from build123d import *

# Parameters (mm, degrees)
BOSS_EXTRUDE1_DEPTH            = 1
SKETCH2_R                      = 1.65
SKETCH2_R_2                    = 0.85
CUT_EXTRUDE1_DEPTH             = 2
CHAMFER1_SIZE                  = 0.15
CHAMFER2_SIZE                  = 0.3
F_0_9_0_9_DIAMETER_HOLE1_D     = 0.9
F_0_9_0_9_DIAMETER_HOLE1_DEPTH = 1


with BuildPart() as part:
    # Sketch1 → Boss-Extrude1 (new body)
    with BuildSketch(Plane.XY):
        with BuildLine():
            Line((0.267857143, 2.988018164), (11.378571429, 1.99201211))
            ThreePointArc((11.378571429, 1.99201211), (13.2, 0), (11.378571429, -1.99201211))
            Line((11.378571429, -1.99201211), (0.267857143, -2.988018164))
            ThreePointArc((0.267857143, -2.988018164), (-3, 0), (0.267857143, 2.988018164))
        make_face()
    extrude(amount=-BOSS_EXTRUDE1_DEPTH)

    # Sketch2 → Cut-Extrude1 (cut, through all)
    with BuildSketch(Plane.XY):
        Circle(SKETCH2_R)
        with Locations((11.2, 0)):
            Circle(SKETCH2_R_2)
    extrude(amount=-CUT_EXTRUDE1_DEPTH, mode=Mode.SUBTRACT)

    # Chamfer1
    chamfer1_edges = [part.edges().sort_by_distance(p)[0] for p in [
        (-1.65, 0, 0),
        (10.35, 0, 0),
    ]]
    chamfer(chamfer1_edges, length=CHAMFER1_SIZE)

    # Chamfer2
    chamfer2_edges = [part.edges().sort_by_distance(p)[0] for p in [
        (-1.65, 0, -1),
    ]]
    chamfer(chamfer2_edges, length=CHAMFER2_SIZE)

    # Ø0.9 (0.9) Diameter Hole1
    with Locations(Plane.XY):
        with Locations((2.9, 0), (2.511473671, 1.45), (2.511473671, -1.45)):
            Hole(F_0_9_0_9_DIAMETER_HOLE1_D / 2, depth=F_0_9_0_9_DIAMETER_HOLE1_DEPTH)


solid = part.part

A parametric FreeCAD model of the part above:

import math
import FreeCAD as App
import Part
import Sketcher
from FreeCAD import Vector


def edges_at(feature, points):
    """Names of the edges that pass closest to the given points."""
    edges = feature.Shape.Edges
    near = lambda p: min(range(len(edges)), key=lambda i: edges[i].distToShape(Part.Vertex(*p))[0])
    return sorted({f"Edge{near(p) + 1}" for p in points})

doc = App.newDocument("Part")
params = doc.addObject("Spreadsheet::Sheet", "Params")
for row, (alias, value) in enumerate([
    ("sketch1_radius", "3 mm"),
    ("sketch1_radius2", "2 mm"),
    ("pad1_length", "1 mm"),
    ("sketch2_diameter", "3.3 mm"),
    ("sketch2_diameter2", "1.7 mm"),
    ("chamfer_size", "0.15 mm"),
    ("chamfer2_size", "0.3 mm"),
    ("sketch3_diameter", "0.9 mm"),
    ("hole_diameter", "0.9 mm"),
    ("hole_depth", "1 mm"),
], start=1):
    params.set(f"A{row}", alias)
    params.set(f"B{row}", "=" + value)
    params.setAlias(f"B{row}", alias)

body = doc.addObject("PartDesign::Body", "Body")

# Sketch on XY plane
sketch1 = doc.addObject("Sketcher::SketchObject", "Sketch")
body.addObject(sketch1)
sketch1.AttachmentSupport = (doc.XY_Plane, [""])
sketch1.MapMode = "FlatFace"
sketch1.addGeometry(Part.LineSegment(Vector(11.4, 2, 0), Vector(0.3, 3, 0)), False)
sketch1.addGeometry(Part.ArcOfCircle(Part.Circle(Vector(0, 0, 0), Vector(0, 0, 1), 3), math.radians(85), math.radians(275)), False)
sketch1.addGeometry(Part.LineSegment(Vector(0.3, -3, 0), Vector(11.4, -2, 0)), False)
sketch1.addGeometry(Part.ArcOfCircle(Part.Circle(Vector(11.2, 0, 0), Vector(0, 0, 1), 2), math.radians(-85), math.radians(85)), False)
sketch1.addConstraint(Sketcher.Constraint("Tangent", 0, 2, 1, 1))
sketch1.addConstraint(Sketcher.Constraint("Tangent", 1, 2, 2, 1))
sketch1.addConstraint(Sketcher.Constraint("Tangent", 2, 2, 3, 1))
sketch1.addConstraint(Sketcher.Constraint("Tangent", 3, 2, 0, 1))
sketch1.addConstraint(Sketcher.Constraint("Coincident", 1, 3, -1, 1))
sketch1.addConstraint(Sketcher.Constraint("PointOnObject", 3, 3, -1))
sketch1.addConstraint(Sketcher.Constraint("Radius", 1, 3.0))
sketch1.addConstraint(Sketcher.Constraint("Radius", 3, 2.0))
sketch1.addConstraint(Sketcher.Constraint("DistanceX", -1, 1, 3, 3, 11.2))
sketch1.setExpression("Constraints[6]", "Params.sketch1_radius")
sketch1.setExpression("Constraints[7]", "Params.sketch1_radius2")
pad1 = doc.addObject("PartDesign::Pad", "Pad")
body.addObject(pad1)
pad1.Profile = sketch1
pad1.setExpression("Length", "Params.pad1_length")
pad1.Reversed = True

# Sketch on XY plane
sketch2 = doc.addObject("Sketcher::SketchObject", "Sketch001")
body.addObject(sketch2)
sketch2.AttachmentSupport = (doc.XY_Plane, [""])
sketch2.MapMode = "FlatFace"
sketch2.addGeometry(Part.Circle(Vector(0, 0, 0), Vector(0, 0, 1), 1.6), False)
sketch2.addGeometry(Part.Circle(Vector(11.2, 0, 0), Vector(0, 0, 1), 0.8), False)
sketch2.addConstraint(Sketcher.Constraint("Coincident", 0, 3, -1, 1))
sketch2.addConstraint(Sketcher.Constraint("PointOnObject", 1, 3, -1))
sketch2.addConstraint(Sketcher.Constraint("Diameter", 0, 3.3))
sketch2.addConstraint(Sketcher.Constraint("Diameter", 1, 1.7))
sketch2.addConstraint(Sketcher.Constraint("DistanceX", -1, 1, 1, 3, 11.2))
sketch2.setExpression("Constraints[2]", "Params.sketch2_diameter")
sketch2.setExpression("Constraints[3]", "Params.sketch2_diameter2")
pocket1 = doc.addObject("PartDesign::Pocket", "Pocket")
body.addObject(pocket1)
pocket1.Profile = sketch2
pocket1.Type = "ThroughAll"
doc.recompute()

chamfer = doc.addObject("PartDesign::Chamfer", "Chamfer")
body.addObject(chamfer)
chamfer.Base = (pocket1, edges_at(pocket1, [(-1.65, 0, 0), (10.35, 0, 0)]))
chamfer.setExpression("Size", "Params.chamfer_size")
doc.recompute()

chamfer2 = doc.addObject("PartDesign::Chamfer", "Chamfer001")
body.addObject(chamfer2)
chamfer2.Base = (chamfer, edges_at(chamfer, [(-1.65, 0, -1)]))
chamfer2.setExpression("Size", "Params.chamfer2_size")

# Sketch on XY plane
sketch3 = doc.addObject("Sketcher::SketchObject", "Sketch002")
body.addObject(sketch3)
sketch3.AttachmentSupport = (doc.XY_Plane, [""])
sketch3.MapMode = "FlatFace"
sketch3.addGeometry(Part.Circle(Vector(2.9, 0, 0), Vector(0, 0, 1), 0.45), False)
sketch3.addGeometry(Part.Circle(Vector(2.51, 1.45, 0), Vector(0, 0, 1), 0.45), False)
sketch3.addGeometry(Part.Circle(Vector(2.51, -1.45, 0), Vector(0, 0, 1), 0.45), False)
sketch3.addConstraint(Sketcher.Constraint("Equal", 0, 1))
sketch3.addConstraint(Sketcher.Constraint("Equal", 1, 2))
sketch3.addConstraint(Sketcher.Constraint("Symmetric", 1, 3, 2, 3, -1))
sketch3.addConstraint(Sketcher.Constraint("PointOnObject", 0, 3, -1))
sketch3.addConstraint(Sketcher.Constraint("Diameter", 0, 0.9))
sketch3.addConstraint(Sketcher.Constraint("DistanceX", -1, 1, 0, 3, 2.9))
sketch3.addConstraint(Sketcher.Constraint("DistanceY", 2, 3, 1, 3, 2.9))
sketch3.addConstraint(Sketcher.Constraint("DistanceX", -1, 1, 1, 3, 2.511474))
sketch3.setExpression("Constraints[4]", "Params.sketch3_diameter")
doc.recompute()
hole = doc.addObject("PartDesign::Hole", "Hole")
body.addObject(hole)
hole.Profile = sketch3
hole.ThreadType = "None"
hole.setExpression("Diameter", "Params.hole_diameter")
hole.DepthType = "Dimension"
hole.setExpression("Depth", "Params.hole_depth")
hole.DrillPoint = "Flat"

doc.recompute()
